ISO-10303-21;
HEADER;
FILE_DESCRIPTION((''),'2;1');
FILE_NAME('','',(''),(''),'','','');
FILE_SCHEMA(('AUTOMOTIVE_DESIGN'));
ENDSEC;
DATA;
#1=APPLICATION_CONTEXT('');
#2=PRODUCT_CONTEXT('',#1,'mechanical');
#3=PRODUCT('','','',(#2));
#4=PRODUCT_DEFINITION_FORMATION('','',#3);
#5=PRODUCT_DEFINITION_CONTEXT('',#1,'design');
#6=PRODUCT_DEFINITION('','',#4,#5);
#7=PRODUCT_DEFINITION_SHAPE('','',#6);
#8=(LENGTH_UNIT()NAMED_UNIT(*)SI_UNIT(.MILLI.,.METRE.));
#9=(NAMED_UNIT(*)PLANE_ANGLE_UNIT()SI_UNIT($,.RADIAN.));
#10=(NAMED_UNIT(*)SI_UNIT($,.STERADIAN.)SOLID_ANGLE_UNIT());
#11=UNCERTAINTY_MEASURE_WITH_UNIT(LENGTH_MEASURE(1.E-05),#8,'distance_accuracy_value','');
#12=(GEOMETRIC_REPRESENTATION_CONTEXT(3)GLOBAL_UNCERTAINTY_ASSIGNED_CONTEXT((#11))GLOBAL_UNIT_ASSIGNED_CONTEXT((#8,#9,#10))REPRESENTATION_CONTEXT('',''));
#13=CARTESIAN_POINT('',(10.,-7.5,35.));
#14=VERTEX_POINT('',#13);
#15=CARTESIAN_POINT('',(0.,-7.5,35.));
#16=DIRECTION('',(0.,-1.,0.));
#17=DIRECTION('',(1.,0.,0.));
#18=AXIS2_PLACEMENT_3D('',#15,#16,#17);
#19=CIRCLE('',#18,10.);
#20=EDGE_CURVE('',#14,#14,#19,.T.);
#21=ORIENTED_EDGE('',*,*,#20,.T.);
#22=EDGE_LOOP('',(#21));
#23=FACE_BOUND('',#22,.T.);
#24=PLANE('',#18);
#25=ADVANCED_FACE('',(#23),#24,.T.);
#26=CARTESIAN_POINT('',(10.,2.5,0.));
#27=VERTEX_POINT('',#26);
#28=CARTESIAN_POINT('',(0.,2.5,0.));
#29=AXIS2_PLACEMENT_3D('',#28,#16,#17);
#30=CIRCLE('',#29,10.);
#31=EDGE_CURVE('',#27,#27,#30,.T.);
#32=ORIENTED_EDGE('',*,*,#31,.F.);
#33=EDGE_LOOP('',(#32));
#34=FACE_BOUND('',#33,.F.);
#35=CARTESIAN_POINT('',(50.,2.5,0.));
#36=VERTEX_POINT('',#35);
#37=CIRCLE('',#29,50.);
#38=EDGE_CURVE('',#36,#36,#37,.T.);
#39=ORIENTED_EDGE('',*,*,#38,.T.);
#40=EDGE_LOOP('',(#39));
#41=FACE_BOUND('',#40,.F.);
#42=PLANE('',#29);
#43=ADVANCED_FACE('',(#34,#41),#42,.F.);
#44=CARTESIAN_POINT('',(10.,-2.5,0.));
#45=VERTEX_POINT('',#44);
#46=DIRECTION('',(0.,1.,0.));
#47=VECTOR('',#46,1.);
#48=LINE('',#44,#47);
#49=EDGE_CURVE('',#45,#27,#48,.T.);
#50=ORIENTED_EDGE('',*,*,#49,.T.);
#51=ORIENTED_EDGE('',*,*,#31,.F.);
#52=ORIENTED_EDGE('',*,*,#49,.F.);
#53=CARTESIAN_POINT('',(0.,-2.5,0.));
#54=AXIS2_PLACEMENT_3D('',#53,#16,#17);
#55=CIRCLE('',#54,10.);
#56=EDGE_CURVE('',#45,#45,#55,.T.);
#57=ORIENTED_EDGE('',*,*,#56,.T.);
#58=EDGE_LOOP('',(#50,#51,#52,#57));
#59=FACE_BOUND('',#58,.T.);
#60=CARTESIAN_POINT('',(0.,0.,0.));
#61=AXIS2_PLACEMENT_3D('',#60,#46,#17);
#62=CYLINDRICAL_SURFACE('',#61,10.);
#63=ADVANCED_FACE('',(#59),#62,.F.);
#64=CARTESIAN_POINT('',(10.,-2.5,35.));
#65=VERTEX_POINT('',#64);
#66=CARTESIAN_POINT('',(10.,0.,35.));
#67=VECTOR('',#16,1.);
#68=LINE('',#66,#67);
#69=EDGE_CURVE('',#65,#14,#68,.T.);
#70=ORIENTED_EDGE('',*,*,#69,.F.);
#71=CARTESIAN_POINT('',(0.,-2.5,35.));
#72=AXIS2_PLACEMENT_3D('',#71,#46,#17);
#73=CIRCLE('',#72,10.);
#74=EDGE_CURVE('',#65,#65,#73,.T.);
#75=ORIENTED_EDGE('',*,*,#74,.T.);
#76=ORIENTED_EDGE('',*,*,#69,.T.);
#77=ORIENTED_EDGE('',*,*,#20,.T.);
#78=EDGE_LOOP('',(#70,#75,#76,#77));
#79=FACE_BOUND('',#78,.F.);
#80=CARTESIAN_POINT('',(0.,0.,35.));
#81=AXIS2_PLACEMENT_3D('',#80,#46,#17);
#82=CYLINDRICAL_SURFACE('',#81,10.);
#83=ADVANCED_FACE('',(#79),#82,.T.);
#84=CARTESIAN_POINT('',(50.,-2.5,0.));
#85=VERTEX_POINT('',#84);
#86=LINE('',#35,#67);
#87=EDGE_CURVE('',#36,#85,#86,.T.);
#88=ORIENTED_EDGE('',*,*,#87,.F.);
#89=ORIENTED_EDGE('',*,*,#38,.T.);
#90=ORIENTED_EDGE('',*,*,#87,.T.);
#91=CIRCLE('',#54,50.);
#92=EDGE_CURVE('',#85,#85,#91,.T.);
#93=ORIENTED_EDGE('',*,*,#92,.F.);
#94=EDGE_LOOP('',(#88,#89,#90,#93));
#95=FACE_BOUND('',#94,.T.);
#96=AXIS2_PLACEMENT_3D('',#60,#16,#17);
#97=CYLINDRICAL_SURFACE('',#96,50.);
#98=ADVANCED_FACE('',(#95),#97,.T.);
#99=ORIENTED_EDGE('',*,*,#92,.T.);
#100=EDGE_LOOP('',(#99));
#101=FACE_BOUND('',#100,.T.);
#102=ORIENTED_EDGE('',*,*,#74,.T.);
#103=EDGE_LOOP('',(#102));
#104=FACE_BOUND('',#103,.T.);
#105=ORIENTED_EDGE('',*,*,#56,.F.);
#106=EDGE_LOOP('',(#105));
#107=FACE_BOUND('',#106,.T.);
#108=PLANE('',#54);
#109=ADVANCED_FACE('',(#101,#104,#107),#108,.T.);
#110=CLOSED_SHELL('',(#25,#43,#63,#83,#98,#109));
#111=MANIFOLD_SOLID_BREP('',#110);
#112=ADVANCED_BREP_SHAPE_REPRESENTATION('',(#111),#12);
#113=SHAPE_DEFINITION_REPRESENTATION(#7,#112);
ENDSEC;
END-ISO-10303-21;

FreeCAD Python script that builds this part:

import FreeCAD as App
import Part
import Sketcher
from FreeCAD import Vector

doc = App.newDocument("Part")
params = doc.addObject("Spreadsheet::Sheet", "Params")
for row, (alias, value) in enumerate([
    ("sketch1_diameter", "100 mm"),
    ("sketch1_diameter2", "20 mm"),
    ("pad1_length", "5 mm"),
    ("sketch2_diameter", "20 mm"),
    ("pad2_length", "7.5 mm"),
], start=1):
    params.set(f"A{row}", alias)
    params.set(f"B{row}", "=" + value)
    params.setAlias(f"B{row}", alias)

body = doc.addObject("PartDesign::Body", "Body")

sketch1 = doc.addObject("Sketcher::SketchObject", "Sketch")
body.addObject(sketch1)
sketch1.AttachmentSupport = (doc.XZ_Plane, [""])
sketch1.MapMode = "FlatFace"
sketch1.addGeometry([
    Part.Circle(Vector(0, 0, 0), Vector(0, 0, 1), 50),
    Part.Circle(Vector(0, 0, 0), Vector(0, 0, 1), 10),
], False)
sketch1.addConstraint([
    Sketcher.Constraint("Coincident", 0, 3, -1, 1),
    Sketcher.Constraint("Coincident", 1, 3, -1, 1),
    Sketcher.Constraint("Diameter", 0, 100.0),
    Sketcher.Constraint("Diameter", 1, 20.0),
])
sketch1.setExpression("Constraints[2]", "Params.sketch1_diameter")
sketch1.setExpression("Constraints[3]", "Params.sketch1_diameter2")
pad1 = doc.addObject("PartDesign::Pad", "Pad")
body.addObject(pad1)
pad1.Profile = sketch1
pad1.setExpression("Length", "Params.pad1_length")
pad1.Midplane = True

sketch2 = doc.addObject("Sketcher::SketchObject", "Sketch001")
body.addObject(sketch2)
sketch2.AttachmentSupport = (doc.XZ_Plane, [""])
sketch2.MapMode = "FlatFace"
sketch2.addGeometry(Part.Circle(Vector(0, 35, 0), Vector(0, 0, 1), 10), False)
sketch2.addConstraint([
    Sketcher.Constraint("PointOnObject", 0, 3, -2),
    Sketcher.Constraint("Diameter", 0, 20.0),
    Sketcher.Constraint("DistanceY", -1, 1, 0, 3, 35.0),
])
sketch2.setExpression("Constraints[1]", "Params.sketch2_diameter")
pad2 = doc.addObject("PartDesign::Pad", "Pad001")
body.addObject(pad2)
pad2.Profile = sketch2
pad2.setExpression("Length", "Params.pad2_length")

doc.recompute()
